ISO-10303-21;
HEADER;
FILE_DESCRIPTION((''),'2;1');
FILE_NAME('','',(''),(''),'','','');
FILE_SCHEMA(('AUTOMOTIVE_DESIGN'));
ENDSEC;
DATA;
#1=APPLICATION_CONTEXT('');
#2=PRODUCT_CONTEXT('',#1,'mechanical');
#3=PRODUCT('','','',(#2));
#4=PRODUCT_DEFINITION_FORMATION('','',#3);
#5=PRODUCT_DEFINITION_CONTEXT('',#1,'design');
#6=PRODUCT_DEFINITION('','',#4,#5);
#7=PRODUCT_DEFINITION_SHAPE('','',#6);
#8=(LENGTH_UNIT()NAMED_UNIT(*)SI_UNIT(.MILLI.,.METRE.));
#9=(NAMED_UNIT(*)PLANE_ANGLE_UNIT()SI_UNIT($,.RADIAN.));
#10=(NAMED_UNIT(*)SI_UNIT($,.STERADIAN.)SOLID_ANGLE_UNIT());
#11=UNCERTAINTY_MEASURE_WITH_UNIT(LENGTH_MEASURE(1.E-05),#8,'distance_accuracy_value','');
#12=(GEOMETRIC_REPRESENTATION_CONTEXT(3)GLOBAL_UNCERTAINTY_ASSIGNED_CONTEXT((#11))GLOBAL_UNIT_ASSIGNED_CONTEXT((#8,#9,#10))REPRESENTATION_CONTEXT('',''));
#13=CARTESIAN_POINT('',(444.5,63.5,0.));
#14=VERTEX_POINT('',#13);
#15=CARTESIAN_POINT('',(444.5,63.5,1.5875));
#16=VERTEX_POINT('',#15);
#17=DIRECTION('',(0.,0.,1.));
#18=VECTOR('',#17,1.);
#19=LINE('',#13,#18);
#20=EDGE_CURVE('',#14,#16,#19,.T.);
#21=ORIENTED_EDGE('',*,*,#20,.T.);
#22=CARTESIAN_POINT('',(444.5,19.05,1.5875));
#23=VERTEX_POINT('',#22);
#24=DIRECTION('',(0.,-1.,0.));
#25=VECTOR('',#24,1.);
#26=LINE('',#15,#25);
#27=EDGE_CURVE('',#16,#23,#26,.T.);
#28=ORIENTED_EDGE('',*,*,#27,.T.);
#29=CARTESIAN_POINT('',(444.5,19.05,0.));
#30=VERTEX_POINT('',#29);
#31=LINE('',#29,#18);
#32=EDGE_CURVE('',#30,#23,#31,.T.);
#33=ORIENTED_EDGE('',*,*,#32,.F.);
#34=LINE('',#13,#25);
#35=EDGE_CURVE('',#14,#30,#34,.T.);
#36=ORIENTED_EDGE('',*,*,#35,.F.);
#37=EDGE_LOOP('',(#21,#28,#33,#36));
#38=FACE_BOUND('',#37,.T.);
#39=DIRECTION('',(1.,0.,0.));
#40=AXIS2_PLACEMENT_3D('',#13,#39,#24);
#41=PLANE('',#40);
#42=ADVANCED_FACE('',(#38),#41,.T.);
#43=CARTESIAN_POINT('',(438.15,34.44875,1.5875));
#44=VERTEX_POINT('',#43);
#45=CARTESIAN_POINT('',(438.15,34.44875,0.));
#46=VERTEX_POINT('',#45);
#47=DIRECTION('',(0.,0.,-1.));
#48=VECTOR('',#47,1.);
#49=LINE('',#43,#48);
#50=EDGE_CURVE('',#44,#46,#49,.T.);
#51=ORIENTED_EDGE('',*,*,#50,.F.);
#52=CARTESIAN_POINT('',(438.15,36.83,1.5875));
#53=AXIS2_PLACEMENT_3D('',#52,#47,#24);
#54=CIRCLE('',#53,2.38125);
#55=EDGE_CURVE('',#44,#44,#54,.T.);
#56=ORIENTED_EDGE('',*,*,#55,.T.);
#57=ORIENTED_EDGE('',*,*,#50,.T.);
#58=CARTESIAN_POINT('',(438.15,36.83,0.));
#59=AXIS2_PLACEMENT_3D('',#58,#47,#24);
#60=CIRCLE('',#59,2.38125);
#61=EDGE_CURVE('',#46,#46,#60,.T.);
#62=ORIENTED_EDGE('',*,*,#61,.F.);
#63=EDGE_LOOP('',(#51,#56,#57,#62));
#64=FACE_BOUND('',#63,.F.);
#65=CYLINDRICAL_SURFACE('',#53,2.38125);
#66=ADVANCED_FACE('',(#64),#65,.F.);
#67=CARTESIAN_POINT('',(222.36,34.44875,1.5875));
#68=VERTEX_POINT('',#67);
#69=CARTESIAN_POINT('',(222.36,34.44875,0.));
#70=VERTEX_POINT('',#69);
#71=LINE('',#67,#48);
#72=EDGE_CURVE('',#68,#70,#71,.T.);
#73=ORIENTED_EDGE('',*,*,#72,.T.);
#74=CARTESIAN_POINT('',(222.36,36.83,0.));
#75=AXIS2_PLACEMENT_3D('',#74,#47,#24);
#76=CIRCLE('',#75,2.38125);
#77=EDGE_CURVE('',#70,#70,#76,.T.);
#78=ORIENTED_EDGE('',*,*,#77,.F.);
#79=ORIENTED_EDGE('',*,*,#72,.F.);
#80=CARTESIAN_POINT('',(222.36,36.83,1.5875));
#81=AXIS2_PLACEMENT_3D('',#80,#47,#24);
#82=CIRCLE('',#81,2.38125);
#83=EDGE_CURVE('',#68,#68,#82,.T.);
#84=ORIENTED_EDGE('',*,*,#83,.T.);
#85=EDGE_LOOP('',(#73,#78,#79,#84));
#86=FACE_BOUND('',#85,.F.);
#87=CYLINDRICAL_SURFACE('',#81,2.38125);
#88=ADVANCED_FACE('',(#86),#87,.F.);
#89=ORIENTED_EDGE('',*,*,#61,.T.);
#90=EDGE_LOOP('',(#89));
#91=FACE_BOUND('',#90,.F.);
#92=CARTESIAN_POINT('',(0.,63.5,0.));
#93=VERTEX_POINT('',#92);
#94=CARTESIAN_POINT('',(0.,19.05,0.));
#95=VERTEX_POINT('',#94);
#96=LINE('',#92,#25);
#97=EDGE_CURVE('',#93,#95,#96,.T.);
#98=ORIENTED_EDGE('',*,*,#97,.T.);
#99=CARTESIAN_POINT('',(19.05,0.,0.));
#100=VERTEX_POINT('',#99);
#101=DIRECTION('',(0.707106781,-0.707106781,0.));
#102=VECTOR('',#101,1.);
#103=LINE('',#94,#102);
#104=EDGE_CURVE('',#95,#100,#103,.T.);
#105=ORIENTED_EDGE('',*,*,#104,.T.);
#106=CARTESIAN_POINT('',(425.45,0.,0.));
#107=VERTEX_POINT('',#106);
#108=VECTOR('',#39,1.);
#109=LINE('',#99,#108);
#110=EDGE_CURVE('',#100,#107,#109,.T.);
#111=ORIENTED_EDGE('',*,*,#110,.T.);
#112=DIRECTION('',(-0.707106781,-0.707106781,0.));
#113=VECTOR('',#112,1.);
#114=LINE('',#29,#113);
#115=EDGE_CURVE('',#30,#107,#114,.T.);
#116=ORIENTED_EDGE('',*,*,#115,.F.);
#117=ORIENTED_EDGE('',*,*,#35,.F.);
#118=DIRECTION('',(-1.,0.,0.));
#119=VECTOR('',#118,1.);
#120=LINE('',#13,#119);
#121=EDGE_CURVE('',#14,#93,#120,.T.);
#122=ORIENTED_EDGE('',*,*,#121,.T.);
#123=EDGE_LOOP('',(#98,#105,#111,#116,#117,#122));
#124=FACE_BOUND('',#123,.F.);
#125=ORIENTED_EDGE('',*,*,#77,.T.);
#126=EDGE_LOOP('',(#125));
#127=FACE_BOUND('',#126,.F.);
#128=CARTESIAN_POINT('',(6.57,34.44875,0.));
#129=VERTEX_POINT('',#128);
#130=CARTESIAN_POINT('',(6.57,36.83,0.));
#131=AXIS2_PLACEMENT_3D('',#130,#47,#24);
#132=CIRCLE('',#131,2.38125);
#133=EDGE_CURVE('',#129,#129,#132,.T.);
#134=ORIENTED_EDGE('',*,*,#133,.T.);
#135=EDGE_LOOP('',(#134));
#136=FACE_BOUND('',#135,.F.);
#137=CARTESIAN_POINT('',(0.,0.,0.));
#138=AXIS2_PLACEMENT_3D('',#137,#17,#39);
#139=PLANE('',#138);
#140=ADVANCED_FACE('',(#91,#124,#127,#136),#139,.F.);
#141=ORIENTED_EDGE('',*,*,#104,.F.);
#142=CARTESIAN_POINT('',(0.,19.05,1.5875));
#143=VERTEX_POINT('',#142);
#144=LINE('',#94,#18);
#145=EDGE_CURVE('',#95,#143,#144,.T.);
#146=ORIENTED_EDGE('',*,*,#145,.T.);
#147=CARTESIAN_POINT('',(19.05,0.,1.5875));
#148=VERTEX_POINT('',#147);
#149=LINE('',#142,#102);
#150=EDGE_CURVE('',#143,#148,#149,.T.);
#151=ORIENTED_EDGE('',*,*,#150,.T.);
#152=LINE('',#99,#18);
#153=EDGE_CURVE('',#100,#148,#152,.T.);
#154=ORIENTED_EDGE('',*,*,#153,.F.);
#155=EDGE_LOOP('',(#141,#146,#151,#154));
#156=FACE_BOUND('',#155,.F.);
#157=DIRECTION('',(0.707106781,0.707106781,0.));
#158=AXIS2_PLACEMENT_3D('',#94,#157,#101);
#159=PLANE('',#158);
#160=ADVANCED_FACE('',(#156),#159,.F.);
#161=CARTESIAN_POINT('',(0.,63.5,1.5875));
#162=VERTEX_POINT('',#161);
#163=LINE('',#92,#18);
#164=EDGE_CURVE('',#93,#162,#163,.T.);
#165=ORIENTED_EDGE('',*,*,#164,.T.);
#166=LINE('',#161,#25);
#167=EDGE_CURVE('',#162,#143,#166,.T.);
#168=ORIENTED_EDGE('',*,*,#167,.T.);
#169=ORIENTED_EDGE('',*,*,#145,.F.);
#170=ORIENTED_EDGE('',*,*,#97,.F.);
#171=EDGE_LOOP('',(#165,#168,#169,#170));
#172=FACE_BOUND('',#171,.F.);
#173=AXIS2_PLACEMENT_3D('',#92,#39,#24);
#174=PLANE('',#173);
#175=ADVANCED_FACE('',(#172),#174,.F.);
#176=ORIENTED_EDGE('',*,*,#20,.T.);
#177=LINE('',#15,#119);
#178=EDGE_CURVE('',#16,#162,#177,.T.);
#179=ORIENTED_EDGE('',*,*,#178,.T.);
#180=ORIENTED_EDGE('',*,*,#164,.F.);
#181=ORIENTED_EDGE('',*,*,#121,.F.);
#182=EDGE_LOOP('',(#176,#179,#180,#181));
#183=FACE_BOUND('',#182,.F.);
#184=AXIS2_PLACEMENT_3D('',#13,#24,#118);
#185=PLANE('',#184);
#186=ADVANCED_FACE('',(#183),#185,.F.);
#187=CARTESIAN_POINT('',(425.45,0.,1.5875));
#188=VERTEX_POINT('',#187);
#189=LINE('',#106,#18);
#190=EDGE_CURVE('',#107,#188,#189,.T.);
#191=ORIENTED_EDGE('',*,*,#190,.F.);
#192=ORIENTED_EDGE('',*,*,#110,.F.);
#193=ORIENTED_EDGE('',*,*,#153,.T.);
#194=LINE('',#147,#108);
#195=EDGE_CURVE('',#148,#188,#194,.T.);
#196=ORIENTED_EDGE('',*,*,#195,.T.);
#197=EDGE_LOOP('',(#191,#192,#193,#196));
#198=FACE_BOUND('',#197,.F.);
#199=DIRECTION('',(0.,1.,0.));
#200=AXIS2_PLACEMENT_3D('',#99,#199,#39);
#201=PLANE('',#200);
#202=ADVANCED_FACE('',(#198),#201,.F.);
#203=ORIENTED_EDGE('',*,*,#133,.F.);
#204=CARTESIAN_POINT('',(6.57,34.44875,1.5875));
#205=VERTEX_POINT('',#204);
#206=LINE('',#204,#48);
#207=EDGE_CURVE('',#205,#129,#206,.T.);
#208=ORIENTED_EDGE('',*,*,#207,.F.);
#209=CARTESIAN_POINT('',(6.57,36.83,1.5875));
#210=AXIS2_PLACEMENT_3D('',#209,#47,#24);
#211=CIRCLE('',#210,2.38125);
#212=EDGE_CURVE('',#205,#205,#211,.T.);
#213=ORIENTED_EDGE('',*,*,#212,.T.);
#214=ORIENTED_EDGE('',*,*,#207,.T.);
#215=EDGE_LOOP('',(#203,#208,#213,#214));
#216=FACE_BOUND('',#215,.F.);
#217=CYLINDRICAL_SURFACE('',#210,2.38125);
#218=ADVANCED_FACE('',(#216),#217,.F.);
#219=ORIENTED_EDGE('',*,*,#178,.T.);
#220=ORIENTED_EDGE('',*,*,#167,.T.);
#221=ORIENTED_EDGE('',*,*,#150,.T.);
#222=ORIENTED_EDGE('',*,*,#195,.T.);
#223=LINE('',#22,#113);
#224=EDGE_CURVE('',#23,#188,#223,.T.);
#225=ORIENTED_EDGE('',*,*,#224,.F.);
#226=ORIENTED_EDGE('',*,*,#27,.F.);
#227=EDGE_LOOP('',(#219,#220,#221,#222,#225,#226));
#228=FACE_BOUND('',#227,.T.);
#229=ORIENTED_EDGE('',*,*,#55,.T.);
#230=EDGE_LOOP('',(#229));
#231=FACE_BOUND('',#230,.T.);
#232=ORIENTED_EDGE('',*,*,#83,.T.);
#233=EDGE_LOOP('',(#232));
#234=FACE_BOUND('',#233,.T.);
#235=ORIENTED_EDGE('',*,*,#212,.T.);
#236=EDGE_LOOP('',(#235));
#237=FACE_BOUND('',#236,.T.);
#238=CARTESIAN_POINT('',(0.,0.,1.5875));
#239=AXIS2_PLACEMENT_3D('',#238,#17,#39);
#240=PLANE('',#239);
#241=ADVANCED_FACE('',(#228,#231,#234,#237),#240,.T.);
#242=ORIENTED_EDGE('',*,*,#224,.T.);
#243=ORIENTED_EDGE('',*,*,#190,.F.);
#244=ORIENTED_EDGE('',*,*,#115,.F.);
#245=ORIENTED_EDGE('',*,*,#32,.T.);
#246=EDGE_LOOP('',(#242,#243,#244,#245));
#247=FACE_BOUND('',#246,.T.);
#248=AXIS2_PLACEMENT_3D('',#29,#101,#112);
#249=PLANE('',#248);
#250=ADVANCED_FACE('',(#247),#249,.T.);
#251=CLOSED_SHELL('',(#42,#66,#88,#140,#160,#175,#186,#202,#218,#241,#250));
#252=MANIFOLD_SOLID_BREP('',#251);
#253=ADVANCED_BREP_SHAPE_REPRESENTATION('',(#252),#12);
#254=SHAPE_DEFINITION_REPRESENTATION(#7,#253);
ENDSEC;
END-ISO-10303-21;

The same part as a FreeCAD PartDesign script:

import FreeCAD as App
import Part
import Sketcher
from FreeCAD import Vector
Q = App.Units.Quantity


def add_polygon(sketch, points):
    """Adds a closed chain of lines whose ends are joined by coincident constraints."""
    first, n = sketch.GeometryCount, len(points)
    for a, b in zip(points, points[1:] + points[:1]):
        sketch.addGeometry(Part.LineSegment(App.Vector(*a, 0), App.Vector(*b, 0)), False)
    for i in range(n):
        sketch.addConstraint(Sketcher.Constraint("Coincident", first + i, 2, first + (i + 1) % n, 1))

doc = App.newDocument("Part")
body = doc.addObject("PartDesign::Body", "Body")

# Sketch on XY plane
sketch1 = body.newObject("Sketcher::SketchObject", "Sketch")
sketch1.AttachmentSupport = (doc.getObject("XY_Plane"), [""])
sketch1.MapMode = "FlatFace"
add_polygon(sketch1, [(444, 19), (444, 64), (0, 64), (0, 19), (19, 0), (425, 0)])  # lines 0-5
sketch1.addConstraint([
    Sketcher.Constraint("Vertical", 0),
    Sketcher.Constraint("Horizontal", 1),
    Sketcher.Constraint("Vertical", 2),
    Sketcher.Constraint("Horizontal", 4),
    Sketcher.Constraint("PointOnObject", 1, 2, -2),
    Sketcher.Constraint("PointOnObject", 3, 2, -1),
    Sketcher.Constraint("Perpendicular", 3, 5),
    Sketcher.Constraint("Horizontal", 2, 2, 5, 2),
    Sketcher.Constraint("Equal", 3, 5),
    Sketcher.Constraint("DistanceX", 1, 2, 1, 1, Q("17.5 in")),
    Sketcher.Constraint("DistanceY", 0, 1, 0, 2, Q("1.75 in")),
    Sketcher.Constraint("DistanceX", 4, 1, 4, 2, Q("16 in")),
])
pad1 = body.newObject("PartDesign::Pad", "Pad")
pad1.Profile = sketch1
pad1.Length = Q("0.0625 in")

# Sketch on XY plane
sketch2 = body.newObject("Sketcher::SketchObject", "Sketch001")
sketch2.AttachmentSupport = (doc.getObject("XY_Plane"), [""])
sketch2.MapMode = "FlatFace"
sketch2.AttachmentOffset = App.Placement(Vector(0, 0, 0.0625 * 25.4), App.Rotation())
sketch2.addGeometry([
    Part.Circle(Vector(6.6, 36.8, 0), Vector(0, 0, 1), 2.4),
    Part.Circle(Vector(222.4, 36.8, 0), Vector(0, 0, 1), 2.4),
    Part.Circle(Vector(438.1, 36.8, 0), Vector(0, 0, 1), 2.4),
], False)
sketch2.addConstraint([
    Sketcher.Constraint("Equal", 0, 1),
    Sketcher.Constraint("Equal", 1, 2),
    Sketcher.Constraint("Horizontal", 0, 3, 1, 3),
    Sketcher.Constraint("Horizontal", 1, 3, 2, 3),
    Sketcher.Constraint("Diameter", 0, Q("0.1875 in")),
    Sketcher.Constraint("DistanceY", -1, 1, 0, 3, Q("1.45 in")),
    Sketcher.Constraint("DistanceX", -1, 1, 2, 3, Q("17.25 in")),
    Sketcher.Constraint("DistanceX", -1, 1, 0, 3, Q("6.57 mm")),
    Sketcher.Constraint("DistanceX", -1, 1, 1, 3, Q("222.36 mm")),
])
doc.recompute()
hole = body.newObject("PartDesign::Hole", "Hole")
hole.Profile = sketch2
hole.ThreadType = "None"
hole.Diameter = Q("0.1875 in")
hole.DepthType = "ThroughAll"

doc.recompute()
